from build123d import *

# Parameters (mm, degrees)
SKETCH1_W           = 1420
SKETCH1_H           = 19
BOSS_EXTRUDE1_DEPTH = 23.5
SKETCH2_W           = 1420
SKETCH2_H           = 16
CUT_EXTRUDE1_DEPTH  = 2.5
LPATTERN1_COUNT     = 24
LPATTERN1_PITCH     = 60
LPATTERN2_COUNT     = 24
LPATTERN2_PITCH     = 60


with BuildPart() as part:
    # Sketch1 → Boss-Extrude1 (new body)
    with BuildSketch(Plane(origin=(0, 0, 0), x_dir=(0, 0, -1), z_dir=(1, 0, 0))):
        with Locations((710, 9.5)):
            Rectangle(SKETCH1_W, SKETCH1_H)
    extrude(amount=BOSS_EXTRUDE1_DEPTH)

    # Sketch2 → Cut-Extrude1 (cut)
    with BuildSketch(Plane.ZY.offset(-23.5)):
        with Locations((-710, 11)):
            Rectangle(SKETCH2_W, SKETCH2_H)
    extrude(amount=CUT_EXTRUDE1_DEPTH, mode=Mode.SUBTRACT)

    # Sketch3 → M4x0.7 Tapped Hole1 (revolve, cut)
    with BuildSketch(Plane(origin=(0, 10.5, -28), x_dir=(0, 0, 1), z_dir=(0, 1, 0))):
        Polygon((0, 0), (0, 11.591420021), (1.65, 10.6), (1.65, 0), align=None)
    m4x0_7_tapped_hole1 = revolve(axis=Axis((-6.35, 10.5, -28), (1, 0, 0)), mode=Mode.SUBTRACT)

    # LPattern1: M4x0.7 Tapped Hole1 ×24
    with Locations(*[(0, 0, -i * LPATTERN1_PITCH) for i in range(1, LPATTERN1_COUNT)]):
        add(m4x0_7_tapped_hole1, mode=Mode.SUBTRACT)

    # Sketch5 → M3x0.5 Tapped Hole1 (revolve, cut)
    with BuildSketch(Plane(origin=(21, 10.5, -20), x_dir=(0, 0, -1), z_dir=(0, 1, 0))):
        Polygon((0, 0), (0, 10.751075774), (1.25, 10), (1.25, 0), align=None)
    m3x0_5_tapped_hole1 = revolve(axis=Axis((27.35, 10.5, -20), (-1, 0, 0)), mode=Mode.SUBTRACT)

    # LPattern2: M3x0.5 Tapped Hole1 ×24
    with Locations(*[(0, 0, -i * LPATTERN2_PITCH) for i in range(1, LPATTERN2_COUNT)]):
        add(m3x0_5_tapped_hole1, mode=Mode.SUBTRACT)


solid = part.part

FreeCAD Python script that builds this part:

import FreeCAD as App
import Part
import Sketcher
Q = App.Units.Quantity

doc = App.newDocument("Part")
body = doc.addObject("PartDesign::Body", "Body")

sketch1 = body.newObject("Sketcher::SketchObject", "Sketch")
sketch1.AttachmentSupport = (doc.getObject("YZ_Plane"), [""])
sketch1.MapMode = "FlatFace"
sketch1.addGeometry([
    Part.LineSegment(App.Vector(19, 0, 0), App.Vector(0, 0, 0)),
    Part.LineSegment(App.Vector(0, 0, 0), App.Vector(0, -1420, 0)),
    Part.LineSegment(App.Vector(0, -1420, 0), App.Vector(19, -1420, 0)),
    Part.LineSegment(App.Vector(19, -1420, 0), App.Vector(19, 0, 0)),
], False)
sketch1.addConstraint([
    Sketcher.Constraint("Coincident", 0, 2, 1, 1),
    Sketcher.Constraint("Coincident", 1, 2, 2, 1),
    Sketcher.Constraint("Coincident", 2, 2, 3, 1),
    Sketcher.Constraint("Coincident", 3, 2, 0, 1),
    Sketcher.Constraint("Horizontal", 0),
    Sketcher.Constraint("Vertical", 1),
    Sketcher.Constraint("Horizontal", 2),
    Sketcher.Constraint("Vertical", 3),
    Sketcher.Constraint("Coincident", 0, 2, -1, 1),
    Sketcher.Constraint("DistanceX", 0, 2, 0, 1, Q("19 mm")),
    Sketcher.Constraint("DistanceY", 1, 2, 1, 1, Q("1420 mm")),
])
pad1 = body.newObject("PartDesign::Pad", "Pad")
pad1.Profile = sketch1
pad1.Length = 23.5

sketch2 = body.newObject("Sketcher::SketchObject", "Sketch001")
sketch2.AttachmentSupport = (doc.getObject("YZ_Plane"), [""])
sketch2.MapMode = "FlatFace"
sketch2.AttachmentOffset = App.Placement(App.Vector(0, 0, 23.5), App.Rotation())
sketch2.addGeometry([
    Part.LineSegment(App.Vector(19, -1420, 0), App.Vector(3, -1420, 0)),
    Part.LineSegment(App.Vector(3, -1420, 0), App.Vector(3, 0, 0)),
    Part.LineSegment(App.Vector(3, 0, 0), App.Vector(19, 0, 0)),
    Part.LineSegment(App.Vector(19, 0, 0), App.Vector(19, -1420, 0)),
], False)
sketch2.addConstraint([
    Sketcher.Constraint("Coincident", 0, 2, 1, 1),
    Sketcher.Constraint("Coincident", 1, 2, 2, 1),
    Sketcher.Constraint("Coincident", 2, 2, 3, 1),
    Sketcher.Constraint("Coincident", 3, 2, 0, 1),
    Sketcher.Constraint("Horizontal", 0),
    Sketcher.Constraint("Vertical", 1),
    Sketcher.Constraint("Horizontal", 2),
    Sketcher.Constraint("Vertical", 3),
    Sketcher.Constraint("PointOnObject", 1, 2, -1),
    Sketcher.Constraint("DistanceX", 0, 2, 0, 1, Q("16 mm")),
    Sketcher.Constraint("DistanceY", 1, 1, 1, 2, Q("1420 mm")),
    Sketcher.Constraint("DistanceX", -1, 1, 0, 2, Q("3 mm")),
])
pocket1 = body.newObject("PartDesign::Pocket", "Pocket")
pocket1.Profile = sketch2
pocket1.Length = 2.5

sketch3 = body.newObject("Sketcher::SketchObject", "Sketch002")
sketch3.AttachmentSupport = (doc.getObject("XZ_Plane"), [""])
sketch3.MapMode = "FlatFace"
sketch3.AttachmentOffset = App.Placement(App.Vector(0, 0, -10.5), App.Rotation())
sketch3.addGeometry([
    Part.LineSegment(App.Vector(11.6, -28, 0), App.Vector(0, -28, 0)),
    Part.LineSegment(App.Vector(0, -28, 0), App.Vector(0, -26.4, 0)),
    Part.LineSegment(App.Vector(0, -26.4, 0), App.Vector(10.6, -26.4, 0)),
    Part.LineSegment(App.Vector(10.6, -26.4, 0), App.Vector(11.6, -28, 0)),
], False)
sketch3.addGeometry(Part.LineSegment(App.Vector(0, -28, 0), App.Vector(11.6, -28, 0)), True)
sketch3.addConstraint([
    Sketcher.Constraint("Coincident", 0, 2, 1, 1),
    Sketcher.Constraint("Coincident", 1, 2, 2, 1),
    Sketcher.Constraint("Coincident", 2, 2, 3, 1),
    Sketcher.Constraint("Coincident", 3, 2, 0, 1),
    Sketcher.Constraint("Horizontal", 0),
    Sketcher.Constraint("Vertical", 1),
    Sketcher.Constraint("Horizontal", 2),
    Sketcher.Constraint("Horizontal", 4),
    Sketcher.Constraint("Coincident", 4, 1, 0, 2),
    Sketcher.Constraint("PointOnObject", 0, 2, -2),
    Sketcher.Constraint("Equal", 0, 4),
    Sketcher.Constraint("Angle", 3, Q("-59 deg")),
    Sketcher.Constraint("DistanceX", 2, 1, 2, 2, Q("10.6 mm")),
    Sketcher.Constraint("DistanceY", 0, 2, -1, 1, Q("28 mm")),
    Sketcher.Constraint("DistanceY", 1, 1, 1, 2, Q("1.65 mm")),
])
groove = body.newObject("PartDesign::Groove", "Groove")
groove.Profile = sketch3
groove.ReferenceAxis = (sketch3, ["Axis0"])
groove.Angle = 360
doc.recompute()

linearpattern = body.newObject("PartDesign::LinearPattern", "LinearPattern")
linearpattern.Originals = [groove]
linearpattern.Direction = (doc.getObject("Z_Axis"), [""])
linearpattern.Mode = "offset"
linearpattern.Offset = 60
linearpattern.Occurrences = 24
linearpattern.Reversed = True
body.Tip = linearpattern

sketch4 = body.newObject("Sketcher::SketchObject", "Sketch003")
sketch4.AttachmentSupport = (doc.getObject("XZ_Plane"), [""])
sketch4.MapMode = "FlatFace"
sketch4.AttachmentOffset = App.Placement(App.Vector(0, 0, -10.5), App.Rotation())
sketch4.addGeometry([
    Part.LineSegment(App.Vector(10.2, -20, 0), App.Vector(21, -20, 0)),
    Part.LineSegment(App.Vector(21, -20, 0), App.Vector(21, -21.2, 0)),
    Part.LineSegment(App.Vector(21, -21.2, 0), App.Vector(11, -21.2, 0)),
    Part.LineSegment(App.Vector(11, -21.2, 0), App.Vector(10.2, -20, 0)),
], False)
sketch4.addGeometry(Part.LineSegment(App.Vector(21, -20, 0), App.Vector(10.2, -20, 0)), True)
sketch4.addConstraint([
    Sketcher.Constraint("Coincident", 0, 2, 1, 1),
    Sketcher.Constraint("Coincident", 1, 2, 2, 1),
    Sketcher.Constraint("Coincident", 2, 2, 3, 1),
    Sketcher.Constraint("Coincident", 3, 2, 0, 1),
    Sketcher.Constraint("Horizontal", 0),
    Sketcher.Constraint("Vertical", 1),
    Sketcher.Constraint("Horizontal", 2),
    Sketcher.Constraint("Horizontal", 4),
    Sketcher.Constraint("Coincident", 4, 1, 0, 2),
    Sketcher.Constraint("Equal", 0, 4),
    Sketcher.Constraint("DistanceX", 2, 2, 2, 1, Q("10 mm")),
    Sketcher.Constraint("Angle", 3, Q("121 deg")),
    Sketcher.Constraint("DistanceX", -1, 1, 0, 2, Q("21 mm")),
    Sketcher.Constraint("DistanceY", 0, 2, -1, 1, Q("20 mm")),
    Sketcher.Constraint("DistanceY", 1, 2, 1, 1, Q("1.25 mm")),
])
groove2 = body.newObject("PartDesign::Groove", "Groove001")
groove2.Profile = sketch4
groove2.ReferenceAxis = (sketch4, ["Axis0"])
groove2.Angle = 360
doc.recompute()

linearpattern2 = body.newObject("PartDesign::LinearPattern", "LinearPattern001")
linearpattern2.Originals = [groove2]
linearpattern2.Direction = (doc.getObject("Z_Axis"), [""])
linearpattern2.Mode = "offset"
linearpattern2.Offset = 60
linearpattern2.Occurrences = 24
linearpattern2.Reversed = True
body.Tip = linearpattern2

doc.recompute()
